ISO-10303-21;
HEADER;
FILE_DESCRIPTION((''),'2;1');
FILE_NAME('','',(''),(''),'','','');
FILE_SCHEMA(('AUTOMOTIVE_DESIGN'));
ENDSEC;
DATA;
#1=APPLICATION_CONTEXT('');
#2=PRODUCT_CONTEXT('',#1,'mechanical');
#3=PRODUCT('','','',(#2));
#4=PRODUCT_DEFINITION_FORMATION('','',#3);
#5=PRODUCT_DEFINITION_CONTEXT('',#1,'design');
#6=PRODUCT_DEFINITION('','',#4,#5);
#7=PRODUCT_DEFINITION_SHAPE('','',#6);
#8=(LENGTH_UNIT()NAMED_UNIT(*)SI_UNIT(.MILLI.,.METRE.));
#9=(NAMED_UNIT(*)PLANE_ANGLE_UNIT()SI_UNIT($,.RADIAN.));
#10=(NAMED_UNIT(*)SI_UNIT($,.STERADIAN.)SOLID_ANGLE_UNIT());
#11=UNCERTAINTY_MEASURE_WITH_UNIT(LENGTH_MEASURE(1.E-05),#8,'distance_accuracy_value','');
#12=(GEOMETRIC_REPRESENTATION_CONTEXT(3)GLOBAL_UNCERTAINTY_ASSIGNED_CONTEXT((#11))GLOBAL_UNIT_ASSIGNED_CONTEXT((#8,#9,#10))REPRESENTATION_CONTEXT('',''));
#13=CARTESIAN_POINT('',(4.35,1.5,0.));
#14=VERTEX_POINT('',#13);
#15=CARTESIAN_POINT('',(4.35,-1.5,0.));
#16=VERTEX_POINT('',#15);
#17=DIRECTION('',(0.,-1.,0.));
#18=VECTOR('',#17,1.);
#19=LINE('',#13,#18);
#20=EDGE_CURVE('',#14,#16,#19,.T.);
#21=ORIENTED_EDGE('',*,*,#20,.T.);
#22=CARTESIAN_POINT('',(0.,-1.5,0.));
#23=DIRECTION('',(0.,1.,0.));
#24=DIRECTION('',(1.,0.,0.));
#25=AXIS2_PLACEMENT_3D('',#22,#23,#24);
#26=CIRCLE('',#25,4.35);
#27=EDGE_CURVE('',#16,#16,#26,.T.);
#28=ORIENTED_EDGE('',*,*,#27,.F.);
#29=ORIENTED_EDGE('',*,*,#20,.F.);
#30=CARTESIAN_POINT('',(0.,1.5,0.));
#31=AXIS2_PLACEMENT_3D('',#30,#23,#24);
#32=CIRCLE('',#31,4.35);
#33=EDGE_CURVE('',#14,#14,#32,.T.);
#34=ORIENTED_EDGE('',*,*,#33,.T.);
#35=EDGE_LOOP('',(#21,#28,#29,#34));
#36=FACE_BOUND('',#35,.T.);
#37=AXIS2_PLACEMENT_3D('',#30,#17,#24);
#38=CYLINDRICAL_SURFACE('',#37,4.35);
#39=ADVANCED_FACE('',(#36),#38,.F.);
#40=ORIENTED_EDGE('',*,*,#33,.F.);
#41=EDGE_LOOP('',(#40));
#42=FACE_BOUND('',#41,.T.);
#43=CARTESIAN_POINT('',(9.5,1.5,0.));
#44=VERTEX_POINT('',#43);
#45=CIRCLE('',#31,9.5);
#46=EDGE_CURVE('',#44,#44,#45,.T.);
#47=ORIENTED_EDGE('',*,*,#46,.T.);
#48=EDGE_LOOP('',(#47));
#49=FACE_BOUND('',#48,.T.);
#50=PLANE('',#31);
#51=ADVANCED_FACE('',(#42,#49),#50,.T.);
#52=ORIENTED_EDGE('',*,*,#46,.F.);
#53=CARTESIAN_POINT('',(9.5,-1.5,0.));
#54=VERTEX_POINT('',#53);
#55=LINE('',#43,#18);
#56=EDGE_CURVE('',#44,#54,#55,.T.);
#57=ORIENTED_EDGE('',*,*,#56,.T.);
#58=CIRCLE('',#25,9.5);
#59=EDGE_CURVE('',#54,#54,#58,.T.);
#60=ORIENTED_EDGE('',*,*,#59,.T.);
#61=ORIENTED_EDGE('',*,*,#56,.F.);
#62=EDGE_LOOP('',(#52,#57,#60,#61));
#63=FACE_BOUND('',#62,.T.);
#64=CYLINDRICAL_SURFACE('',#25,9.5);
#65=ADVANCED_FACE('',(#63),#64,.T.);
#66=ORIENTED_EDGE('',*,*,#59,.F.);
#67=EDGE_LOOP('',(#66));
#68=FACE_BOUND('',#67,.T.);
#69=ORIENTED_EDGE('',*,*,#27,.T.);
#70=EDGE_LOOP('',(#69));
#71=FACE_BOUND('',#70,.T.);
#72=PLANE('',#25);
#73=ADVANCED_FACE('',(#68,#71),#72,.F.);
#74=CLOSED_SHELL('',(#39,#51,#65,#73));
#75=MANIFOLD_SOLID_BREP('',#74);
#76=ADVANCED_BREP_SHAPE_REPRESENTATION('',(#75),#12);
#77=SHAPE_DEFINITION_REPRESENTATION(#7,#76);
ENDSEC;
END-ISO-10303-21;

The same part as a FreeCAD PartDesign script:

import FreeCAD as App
import Part
import Sketcher

V = App.Vector


def add_polygon(sketch, points):
    """Adds a closed chain of lines whose ends are joined by coincident constraints."""
    first, n = sketch.GeometryCount, len(points)
    for a, b in zip(points, points[1:] + points[:1]):
        sketch.addGeometry(Part.LineSegment(App.Vector(*a, 0), App.Vector(*b, 0)), False)
    for i in range(n):
        sketch.addConstraint(Sketcher.Constraint("Coincident", first + i, 2, first + (i + 1) % n, 1))

doc = App.newDocument("Part")
body = doc.addObject("PartDesign::Body", "Body")

# Sketch on XY plane
sketch1 = doc.addObject("Sketcher::SketchObject", "Sketch")
body.addObject(sketch1)
sketch1.AttachmentSupport = (doc.XY_Plane, [""])
sketch1.MapMode = "FlatFace"
add_polygon(sketch1, [(4.35, 1.5), (4.35, -1.5), (9.5, -1.5), (9.5, 1.5)])  # lines 0-3
sketch1.addConstraint(Sketcher.Constraint("Vertical", 0))
sketch1.addConstraint(Sketcher.Constraint("Horizontal", 1))
sketch1.addConstraint(Sketcher.Constraint("Vertical", 2))
sketch1.addConstraint(Sketcher.Constraint("Horizontal", 3))
sketch1.addConstraint(Sketcher.Constraint("DistanceY", 0, 2, 0, 1, 3.0))
sketch1.addConstraint(Sketcher.Constraint("DistanceX", 1, 1, 1, 2, 5.15))
sketch1.addConstraint(Sketcher.Constraint("DistanceY", 0, 2, -1, 1, 1.5))
sketch1.addConstraint(Sketcher.Constraint("DistanceX", -1, 1, 1, 2, 9.5))
revolution = doc.addObject("PartDesign::Revolution", "Revolution")
body.addObject(revolution)
revolution.Profile = sketch1
revolution.ReferenceAxis = (sketch1, ["V_Axis"])
revolution.Angle = 360

doc.recompute()
